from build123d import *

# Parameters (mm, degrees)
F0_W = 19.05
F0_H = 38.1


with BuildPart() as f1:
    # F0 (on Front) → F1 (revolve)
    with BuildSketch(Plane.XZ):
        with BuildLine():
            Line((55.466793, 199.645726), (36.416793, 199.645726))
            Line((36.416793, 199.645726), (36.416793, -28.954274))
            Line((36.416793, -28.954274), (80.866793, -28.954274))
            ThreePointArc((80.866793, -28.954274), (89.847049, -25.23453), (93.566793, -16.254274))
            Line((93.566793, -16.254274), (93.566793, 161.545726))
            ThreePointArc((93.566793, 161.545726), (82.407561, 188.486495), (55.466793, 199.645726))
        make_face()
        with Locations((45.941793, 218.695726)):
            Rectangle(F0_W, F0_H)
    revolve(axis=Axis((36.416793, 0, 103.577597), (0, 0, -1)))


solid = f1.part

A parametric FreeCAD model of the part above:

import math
import FreeCAD as App
import Part
import Sketcher
Q = App.Units.Quantity

doc = App.newDocument("Part")
body = doc.addObject("PartDesign::Body", "Body")

# Sketch on XZ plane
sketch1 = doc.addObject("Sketcher::SketchObject", "Sketch")
body.addObject(sketch1)
sketch1.AttachmentSupport = (doc.XZ_Plane, [""])
sketch1.MapMode = "FlatFace"
sketch1.addGeometry(Part.LineSegment(App.Vector(36.416793, -28.954274, 0), App.Vector(80.866793, -28.954274, 0)), False)
sketch1.addGeometry(Part.ArcOfCircle(Part.Circle(App.Vector(80.866793, -16.254274, 0), App.Vector(0, 0, 1), 12.7), math.radians(-89.999998), math.radians(-0.000002)), False)
sketch1.addGeometry(Part.LineSegment(App.Vector(93.566793, -16.254274, 0), App.Vector(93.566793, 161.545726, 0)), False)
sketch1.addGeometry(Part.ArcOfCircle(Part.Circle(App.Vector(55.466793, 161.545726, 0), App.Vector(0, 0, 1), 38.1), math.radians(-0.000001), math.radians(90.000001)), False)
sketch1.addGeometry(Part.LineSegment(App.Vector(55.466793, 199.645726, 0), App.Vector(55.466793, 237.745726, 0)), False)
sketch1.addGeometry(Part.LineSegment(App.Vector(55.466793, 237.745726, 0), App.Vector(36.416793, 237.745726, 0)), False)
sketch1.addGeometry(Part.LineSegment(App.Vector(36.416793, 237.745726, 0), App.Vector(36.416793, -28.954274, 0)), False)
sketch1.addGeometry(Part.LineSegment(App.Vector(36.416793, 237.745726, 0), App.Vector(36.416793, -28.954274, 0)), True)  # axis
sketch1.addConstraint(Sketcher.Constraint("Tangent", 0, 2, 1, 1))
sketch1.addConstraint(Sketcher.Constraint("Tangent", 1, 2, 2, 1))
sketch1.addConstraint(Sketcher.Constraint("Tangent", 2, 2, 3, 1))
sketch1.addConstraint(Sketcher.Constraint("Coincident", 3, 2, 4, 1))
sketch1.addConstraint(Sketcher.Constraint("Coincident", 4, 2, 5, 1))
sketch1.addConstraint(Sketcher.Constraint("Coincident", 5, 2, 6, 1))
sketch1.addConstraint(Sketcher.Constraint("Coincident", 6, 2, 0, 1))
sketch1.addConstraint(Sketcher.Constraint("Horizontal", 0))
sketch1.addConstraint(Sketcher.Constraint("Vertical", 2))
sketch1.addConstraint(Sketcher.Constraint("Vertical", 4))
sketch1.addConstraint(Sketcher.Constraint("Horizontal", 5))
sketch1.addConstraint(Sketcher.Constraint("Vertical", 6))
sketch1.addConstraint(Sketcher.Constraint("Vertical", 7))
sketch1.addConstraint(Sketcher.Constraint("Coincident", 7, 1, 5, 2))
sketch1.addConstraint(Sketcher.Constraint("Horizontal", 0, 2, 7, 2))
sketch1.addConstraint(Sketcher.Constraint("Radius", 1, Q("0.5 in")))
sketch1.addConstraint(Sketcher.Constraint("Radius", 3, Q("1.5 in")))
sketch1.addConstraint(Sketcher.Constraint("DistanceY", 2, 1, 2, 2, Q("7 in")))
sketch1.addConstraint(Sketcher.Constraint("DistanceY", 4, 1, 4, 2, Q("1.5 in")))
sketch1.addConstraint(Sketcher.Constraint("DistanceX", 3, 2, 1, 3, Q("1 in")))
sketch1.addConstraint(Sketcher.Constraint("DistanceX", 0, 1, 0, 2, Q("1.75 in")))
sketch1.addConstraint(Sketcher.Constraint("DistanceX", -1, 1, 1, 3, Q("80.866793 mm")))
sketch1.addConstraint(Sketcher.Constraint("DistanceY", 1, 3, -1, 1, Q("16.254274 mm")))
revolution = doc.addObject("PartDesign::Revolution", "Revolution")
body.addObject(revolution)
revolution.Profile = sketch1
revolution.ReferenceAxis = (sketch1, ["Axis0"])
revolution.Angle = 360

doc.recompute()
